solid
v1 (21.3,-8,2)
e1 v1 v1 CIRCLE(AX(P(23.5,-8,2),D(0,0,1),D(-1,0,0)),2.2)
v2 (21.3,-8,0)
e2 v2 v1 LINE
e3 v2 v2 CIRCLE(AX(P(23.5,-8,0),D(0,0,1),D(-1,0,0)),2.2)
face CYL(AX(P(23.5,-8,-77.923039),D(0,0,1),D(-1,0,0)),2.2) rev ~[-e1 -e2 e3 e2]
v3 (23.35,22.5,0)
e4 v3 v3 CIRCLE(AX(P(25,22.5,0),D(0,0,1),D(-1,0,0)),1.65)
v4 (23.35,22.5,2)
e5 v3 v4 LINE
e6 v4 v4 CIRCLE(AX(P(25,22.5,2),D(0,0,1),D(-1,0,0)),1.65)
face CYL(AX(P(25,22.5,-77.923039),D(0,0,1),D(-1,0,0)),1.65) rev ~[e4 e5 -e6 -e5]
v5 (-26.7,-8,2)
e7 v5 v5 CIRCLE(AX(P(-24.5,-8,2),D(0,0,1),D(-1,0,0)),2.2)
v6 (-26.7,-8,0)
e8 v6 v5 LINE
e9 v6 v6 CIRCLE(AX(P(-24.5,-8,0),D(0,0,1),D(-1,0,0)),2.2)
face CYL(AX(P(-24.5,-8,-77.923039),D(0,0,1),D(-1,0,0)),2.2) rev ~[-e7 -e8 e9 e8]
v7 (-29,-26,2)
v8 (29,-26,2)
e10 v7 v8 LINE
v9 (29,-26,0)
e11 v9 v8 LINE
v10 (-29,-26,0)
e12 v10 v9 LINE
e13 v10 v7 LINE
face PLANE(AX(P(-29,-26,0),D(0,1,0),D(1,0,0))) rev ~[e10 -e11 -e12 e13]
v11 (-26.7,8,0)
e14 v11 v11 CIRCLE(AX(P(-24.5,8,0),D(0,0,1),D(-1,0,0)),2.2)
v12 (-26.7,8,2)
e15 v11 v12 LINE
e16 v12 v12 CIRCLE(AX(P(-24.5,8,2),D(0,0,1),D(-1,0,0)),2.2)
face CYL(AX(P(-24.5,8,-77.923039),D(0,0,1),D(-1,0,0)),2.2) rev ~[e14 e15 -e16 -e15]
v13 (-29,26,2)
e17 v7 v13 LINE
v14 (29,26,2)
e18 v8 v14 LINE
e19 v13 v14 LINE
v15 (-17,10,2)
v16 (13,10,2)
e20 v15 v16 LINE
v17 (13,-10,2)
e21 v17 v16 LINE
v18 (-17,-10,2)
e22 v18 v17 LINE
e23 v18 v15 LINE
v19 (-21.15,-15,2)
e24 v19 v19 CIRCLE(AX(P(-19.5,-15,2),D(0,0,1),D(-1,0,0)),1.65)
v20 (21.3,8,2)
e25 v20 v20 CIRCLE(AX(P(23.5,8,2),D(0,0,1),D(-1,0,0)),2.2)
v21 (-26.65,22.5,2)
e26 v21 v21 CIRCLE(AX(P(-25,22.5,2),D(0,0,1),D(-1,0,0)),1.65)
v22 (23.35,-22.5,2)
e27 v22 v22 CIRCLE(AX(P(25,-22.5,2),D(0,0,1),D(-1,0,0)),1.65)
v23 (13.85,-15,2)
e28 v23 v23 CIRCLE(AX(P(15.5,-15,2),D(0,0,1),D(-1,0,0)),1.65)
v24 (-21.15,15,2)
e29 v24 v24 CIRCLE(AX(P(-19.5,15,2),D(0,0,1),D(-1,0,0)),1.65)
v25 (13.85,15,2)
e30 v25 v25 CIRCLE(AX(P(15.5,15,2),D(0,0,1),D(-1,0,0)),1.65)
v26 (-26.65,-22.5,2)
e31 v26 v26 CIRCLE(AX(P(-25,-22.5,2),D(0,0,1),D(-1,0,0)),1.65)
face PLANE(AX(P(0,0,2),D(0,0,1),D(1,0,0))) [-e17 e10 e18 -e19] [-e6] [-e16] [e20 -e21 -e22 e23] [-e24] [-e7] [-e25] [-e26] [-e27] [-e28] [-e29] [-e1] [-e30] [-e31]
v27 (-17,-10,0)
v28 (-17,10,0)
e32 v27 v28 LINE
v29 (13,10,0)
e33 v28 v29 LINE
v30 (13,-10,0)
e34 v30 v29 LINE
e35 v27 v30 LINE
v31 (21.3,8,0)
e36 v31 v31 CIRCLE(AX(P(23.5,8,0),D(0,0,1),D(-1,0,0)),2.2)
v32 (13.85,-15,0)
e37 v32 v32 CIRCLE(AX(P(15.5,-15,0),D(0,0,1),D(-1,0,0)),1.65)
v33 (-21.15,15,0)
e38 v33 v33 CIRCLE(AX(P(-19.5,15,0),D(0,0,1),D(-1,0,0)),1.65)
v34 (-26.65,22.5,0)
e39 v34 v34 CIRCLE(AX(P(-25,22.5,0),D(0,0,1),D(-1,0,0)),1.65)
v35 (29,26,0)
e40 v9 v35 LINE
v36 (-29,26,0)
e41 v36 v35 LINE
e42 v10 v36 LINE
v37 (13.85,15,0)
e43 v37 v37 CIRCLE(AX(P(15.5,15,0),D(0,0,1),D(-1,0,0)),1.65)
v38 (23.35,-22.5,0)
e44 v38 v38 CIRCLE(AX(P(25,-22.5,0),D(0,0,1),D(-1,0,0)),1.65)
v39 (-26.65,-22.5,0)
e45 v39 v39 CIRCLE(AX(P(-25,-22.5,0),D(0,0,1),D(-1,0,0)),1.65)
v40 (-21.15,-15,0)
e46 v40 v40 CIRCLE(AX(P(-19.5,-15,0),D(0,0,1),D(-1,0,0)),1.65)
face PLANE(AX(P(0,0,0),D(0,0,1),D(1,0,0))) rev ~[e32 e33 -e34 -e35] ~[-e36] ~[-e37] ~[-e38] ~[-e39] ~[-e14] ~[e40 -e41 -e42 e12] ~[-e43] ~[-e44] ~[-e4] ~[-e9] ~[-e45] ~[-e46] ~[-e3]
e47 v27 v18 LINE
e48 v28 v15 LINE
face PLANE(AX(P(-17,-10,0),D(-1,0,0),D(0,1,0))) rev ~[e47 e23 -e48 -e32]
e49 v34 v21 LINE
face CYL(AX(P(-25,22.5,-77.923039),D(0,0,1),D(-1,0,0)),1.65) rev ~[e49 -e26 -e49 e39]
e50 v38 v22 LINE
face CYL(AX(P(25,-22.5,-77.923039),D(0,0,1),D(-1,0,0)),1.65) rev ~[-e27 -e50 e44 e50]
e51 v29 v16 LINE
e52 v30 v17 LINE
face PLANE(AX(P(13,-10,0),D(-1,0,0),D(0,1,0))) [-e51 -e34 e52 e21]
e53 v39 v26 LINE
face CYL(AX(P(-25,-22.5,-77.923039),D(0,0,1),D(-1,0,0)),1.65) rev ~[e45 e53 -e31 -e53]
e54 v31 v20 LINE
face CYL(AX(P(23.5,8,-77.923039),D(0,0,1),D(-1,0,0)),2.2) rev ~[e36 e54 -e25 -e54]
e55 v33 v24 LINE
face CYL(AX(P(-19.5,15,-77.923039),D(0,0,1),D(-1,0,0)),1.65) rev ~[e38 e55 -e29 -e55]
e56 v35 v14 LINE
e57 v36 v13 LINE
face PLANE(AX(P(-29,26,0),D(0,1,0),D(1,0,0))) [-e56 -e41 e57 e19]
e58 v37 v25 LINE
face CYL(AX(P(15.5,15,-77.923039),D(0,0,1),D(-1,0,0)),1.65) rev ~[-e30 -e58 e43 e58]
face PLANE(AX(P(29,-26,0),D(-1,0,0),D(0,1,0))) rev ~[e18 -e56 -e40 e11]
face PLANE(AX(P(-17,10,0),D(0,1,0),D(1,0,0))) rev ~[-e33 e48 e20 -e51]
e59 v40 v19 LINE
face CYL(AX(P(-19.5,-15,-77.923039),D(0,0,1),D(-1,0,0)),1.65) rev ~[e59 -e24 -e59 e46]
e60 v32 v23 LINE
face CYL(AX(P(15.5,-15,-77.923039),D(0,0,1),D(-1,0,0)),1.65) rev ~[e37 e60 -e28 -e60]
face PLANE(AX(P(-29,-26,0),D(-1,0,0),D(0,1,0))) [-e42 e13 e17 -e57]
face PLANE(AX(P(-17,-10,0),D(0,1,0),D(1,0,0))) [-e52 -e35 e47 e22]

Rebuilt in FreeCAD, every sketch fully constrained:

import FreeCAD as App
import Part
import Sketcher
from FreeCAD import Vector
Q = App.Units.Quantity

doc = App.newDocument("Part")
body = doc.addObject("PartDesign::Body", "Body")

# Sketch on XY plane
sketch1 = body.newObject("Sketcher::SketchObject", "Sketch")
sketch1.AttachmentSupport = (doc.getObject("XY_Plane"), [""])
sketch1.MapMode = "FlatFace"
sketch1.addGeometry([
    Part.LineSegment(Vector(-29, 26, 0), Vector(-29, -26, 0)),  # 0
    Part.LineSegment(Vector(-29, -26, 0), Vector(29, -26, 0)),  # 1
    Part.LineSegment(Vector(29, -26, 0), Vector(29, 26, 0)),  # 2
    Part.LineSegment(Vector(29, 26, 0), Vector(-29, 26, 0)),  # 3
    Part.LineSegment(Vector(13, -10, 0), Vector(-17, -10, 0)),  # 4
    Part.LineSegment(Vector(-17, -10, 0), Vector(-17, 10, 0)),  # 5
    Part.LineSegment(Vector(-17, 10, 0), Vector(13, 10, 0)),  # 6
    Part.LineSegment(Vector(13, 10, 0), Vector(13, -10, 0)),  # 7
], False)
sketch1.addConstraint([
    Sketcher.Constraint("Coincident", 0, 2, 1, 1),
    Sketcher.Constraint("Coincident", 1, 2, 2, 1),
    Sketcher.Constraint("Coincident", 2, 2, 3, 1),
    Sketcher.Constraint("Coincident", 3, 2, 0, 1),
    Sketcher.Constraint("Coincident", 4, 2, 5, 1),
    Sketcher.Constraint("Coincident", 5, 2, 6, 1),
    Sketcher.Constraint("Coincident", 6, 2, 7, 1),
    Sketcher.Constraint("Coincident", 7, 2, 4, 1),
    Sketcher.Constraint("Vertical", 0),
    Sketcher.Constraint("Horizontal", 1),
    Sketcher.Constraint("Vertical", 2),
    Sketcher.Constraint("Horizontal", 3),
    Sketcher.Constraint("Horizontal", 4),
    Sketcher.Constraint("Vertical", 5),
    Sketcher.Constraint("Horizontal", 6),
    Sketcher.Constraint("Vertical", 7),
    Sketcher.Constraint("Symmetric", 0, 2, 2, 2, -1, 1),
    Sketcher.Constraint("DistanceX", 1, 1, 1, 2, Q("58 mm")),
    Sketcher.Constraint("DistanceX", 4, 2, 4, 1, Q("30 mm")),
    Sketcher.Constraint("DistanceY", 0, 2, 0, 1, Q("52 mm")),
    Sketcher.Constraint("DistanceY", 5, 1, 5, 2, Q("20 mm")),
    Sketcher.Constraint("DistanceX", 4, 2, -1, 1, Q("17 mm")),
    Sketcher.Constraint("DistanceY", 4, 2, -1, 1, Q("10 mm")),
])
pad1 = body.newObject("PartDesign::Pad", "Pad")
pad1.Profile = sketch1
pad1.Length = 2

# Sketch on XY plane
sketch2 = body.newObject("Sketcher::SketchObject", "Sketch001")
sketch2.AttachmentSupport = (doc.getObject("XY_Plane"), [""])
sketch2.MapMode = "FlatFace"
sketch2.addGeometry([
    Part.Circle(Vector(-19.5, -15, 0), Vector(0, 0, 1), 1.6),  # 0
    Part.Circle(Vector(-25, -22.5, 0), Vector(0, 0, 1), 1.6),  # 1
    Part.Circle(Vector(-19.5, 15, 0), Vector(0, 0, 1), 1.6),  # 2
    Part.Circle(Vector(-25, 22.5, 0), Vector(0, 0, 1), 1.6),  # 3
    Part.Circle(Vector(15.5, -15, 0), Vector(0, 0, 1), 1.6),  # 4
    Part.Circle(Vector(15.5, 15, 0), Vector(0, 0, 1), 1.6),  # 5
    Part.Circle(Vector(25, 22.5, 0), Vector(0, 0, 1), 1.6),  # 6
    Part.Circle(Vector(25, -22.5, 0), Vector(0, 0, 1), 1.6),  # 7
], False)
sketch2.addConstraint([
    Sketcher.Constraint("Equal", 0, 1),
    Sketcher.Constraint("Equal", 1, 2),
    Sketcher.Constraint("Equal", 2, 3),
    Sketcher.Constraint("Equal", 3, 4),
    Sketcher.Constraint("Equal", 4, 5),
    Sketcher.Constraint("Equal", 5, 6),
    Sketcher.Constraint("Equal", 6, 7),
    Sketcher.Constraint("Symmetric", 1, 3, 6, 3, -1, 1),
    Sketcher.Constraint("Symmetric", 3, 3, 7, 3, -1, 1),
    Sketcher.Constraint("Symmetric", 3, 3, 6, 3, -2),
    Sketcher.Constraint("Symmetric", 0, 3, 2, 3, -1),
    Sketcher.Constraint("Symmetric", 4, 3, 5, 3, -1),
    Sketcher.Constraint("Horizontal", 0, 3, 4, 3),
    Sketcher.Constraint("Diameter", 0, Q("3.3 mm")),
    Sketcher.Constraint("DistanceY", 0, 3, -1, 1, Q("15 mm")),
    Sketcher.Constraint("DistanceX", 1, 3, -1, 1, Q("25 mm")),
    Sketcher.Constraint("DistanceY", 1, 3, 3, 3, Q("45 mm")),
    Sketcher.Constraint("DistanceX", 0, 3, 4, 3, Q("35 mm")),
    Sketcher.Constraint("DistanceX", 0, 3, -1, 1, Q("19.5 mm")),
])
doc.recompute()
hole = body.newObject("PartDesign::Hole", "Hole")
hole.Profile = sketch2
hole.ThreadType = "None"
hole.Diameter = 3.3
hole.DepthType = "ThroughAll"
hole.Reversed = True

# Sketch on XY plane
sketch3 = body.newObject("Sketcher::SketchObject", "Sketch002")
sketch3.AttachmentSupport = (doc.getObject("XY_Plane"), [""])
sketch3.MapMode = "FlatFace"
sketch3.addGeometry([
    Part.Circle(Vector(-24.5, -8, 0), Vector(0, 0, 1), 2.2),
    Part.Circle(Vector(-24.5, 8, 0), Vector(0, 0, 1), 2.2),
    Part.Circle(Vector(23.5, -8, 0), Vector(0, 0, 1), 2.2),
    Part.Circle(Vector(23.5, 8, 0), Vector(0, 0, 1), 2.2),
], False)
sketch3.addConstraint([
    Sketcher.Constraint("Equal", 0, 1),
    Sketcher.Constraint("Equal", 1, 2),
    Sketcher.Constraint("Equal", 2, 3),
    Sketcher.Constraint("Symmetric", 0, 3, 1, 3, -1),
    Sketcher.Constraint("Symmetric", 2, 3, 3, 3, -1),
    Sketcher.Constraint("Horizontal", 0, 3, 2, 3),
    Sketcher.Constraint("Diameter", 0, Q("4.4 mm")),
    Sketcher.Constraint("DistanceY", 0, 3, -1, 1, Q("8 mm")),
    Sketcher.Constraint("DistanceX", 0, 3, 2, 3, Q("48 mm")),
    Sketcher.Constraint("DistanceX", 0, 3, -1, 1, Q("24.5 mm")),
])
doc.recompute()
hole2 = body.newObject("PartDesign::Hole", "Hole001")
hole2.Profile = sketch3
hole2.ThreadType = "None"
hole2.Diameter = 4.4
hole2.DepthType = "ThroughAll"
hole2.Reversed = True

doc.recompute()
